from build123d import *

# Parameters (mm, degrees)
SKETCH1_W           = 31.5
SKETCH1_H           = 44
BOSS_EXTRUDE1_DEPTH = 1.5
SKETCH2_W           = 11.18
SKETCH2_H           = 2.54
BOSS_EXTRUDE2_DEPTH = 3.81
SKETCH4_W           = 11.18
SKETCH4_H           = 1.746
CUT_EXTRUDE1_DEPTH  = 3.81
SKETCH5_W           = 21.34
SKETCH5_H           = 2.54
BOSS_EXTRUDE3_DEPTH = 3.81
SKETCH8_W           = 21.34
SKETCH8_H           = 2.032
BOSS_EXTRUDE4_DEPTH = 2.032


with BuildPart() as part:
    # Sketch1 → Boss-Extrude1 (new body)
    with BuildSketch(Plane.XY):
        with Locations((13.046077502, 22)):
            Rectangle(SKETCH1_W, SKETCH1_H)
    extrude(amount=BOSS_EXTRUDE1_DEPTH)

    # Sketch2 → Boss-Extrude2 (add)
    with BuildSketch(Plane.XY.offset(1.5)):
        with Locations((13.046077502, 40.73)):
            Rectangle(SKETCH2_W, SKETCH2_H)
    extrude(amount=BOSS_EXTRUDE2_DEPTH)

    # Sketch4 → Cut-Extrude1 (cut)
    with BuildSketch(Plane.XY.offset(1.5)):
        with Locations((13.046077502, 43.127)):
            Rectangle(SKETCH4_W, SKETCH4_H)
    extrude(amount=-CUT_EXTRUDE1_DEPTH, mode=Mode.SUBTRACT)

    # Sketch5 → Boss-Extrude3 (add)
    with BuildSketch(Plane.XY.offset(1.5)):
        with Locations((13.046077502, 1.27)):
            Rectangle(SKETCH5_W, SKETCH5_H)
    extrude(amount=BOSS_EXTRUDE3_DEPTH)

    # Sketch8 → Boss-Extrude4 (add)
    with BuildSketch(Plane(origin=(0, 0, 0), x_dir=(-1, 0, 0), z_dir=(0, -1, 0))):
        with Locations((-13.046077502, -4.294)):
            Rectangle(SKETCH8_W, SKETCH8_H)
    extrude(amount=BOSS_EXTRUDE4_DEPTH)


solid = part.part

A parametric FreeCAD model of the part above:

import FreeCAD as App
import Part
import Sketcher

V = App.Vector
Q = App.Units.Quantity

doc = App.newDocument("Part")
body = doc.addObject("PartDesign::Body", "Body")

# Sketch on XY plane
sketch1 = body.newObject("Sketcher::SketchObject", "Sketch")
sketch1.AttachmentSupport = (doc.getObject("XY_Plane"), [""])
sketch1.MapMode = "FlatFace"
sketch1.addGeometry([
    Part.LineSegment(V(-3, 44, 0), V(-3, 0, 0)),
    Part.LineSegment(V(-3, 0, 0), V(29, 0, 0)),
    Part.LineSegment(V(29, 0, 0), V(29, 44, 0)),
    Part.LineSegment(V(29, 44, 0), V(-3, 44, 0)),
], False)
sketch1.addConstraint([
    Sketcher.Constraint("Coincident", 0, 2, 1, 1),
    Sketcher.Constraint("Coincident", 1, 2, 2, 1),
    Sketcher.Constraint("Coincident", 2, 2, 3, 1),
    Sketcher.Constraint("Coincident", 3, 2, 0, 1),
    Sketcher.Constraint("Vertical", 0),
    Sketcher.Constraint("Horizontal", 1),
    Sketcher.Constraint("Vertical", 2),
    Sketcher.Constraint("Horizontal", 3),
    Sketcher.Constraint("PointOnObject", 0, 2, -1),
    Sketcher.Constraint("DistanceY", 0, 2, 0, 1, Q("44 mm")),
    Sketcher.Constraint("DistanceX", 1, 1, 1, 2, Q("31.5 mm")),
    Sketcher.Constraint("DistanceX", 0, 2, -1, 1, Q("2.703922 mm")),
])
pad1 = body.newObject("PartDesign::Pad", "Pad")
pad1.Profile = sketch1
pad1.Length = 1.5

# Sketch on XY plane
sketch2 = body.newObject("Sketcher::SketchObject", "Sketch001")
sketch2.AttachmentSupport = (doc.getObject("XY_Plane"), [""])
sketch2.MapMode = "FlatFace"
sketch2.AttachmentOffset = App.Placement(V(0, 0, 1.5), App.Rotation())
sketch2.addGeometry([
    Part.LineSegment(V(7.5, 42, 0), V(7.5, 39.5, 0)),
    Part.LineSegment(V(7.5, 39.5, 0), V(18.6, 39.5, 0)),
    Part.LineSegment(V(18.6, 39.5, 0), V(18.6, 42, 0)),
    Part.LineSegment(V(18.6, 42, 0), V(7.5, 42, 0)),
], False)
sketch2.addConstraint([
    Sketcher.Constraint("Coincident", 0, 2, 1, 1),
    Sketcher.Constraint("Coincident", 1, 2, 2, 1),
    Sketcher.Constraint("Coincident", 2, 2, 3, 1),
    Sketcher.Constraint("Coincident", 3, 2, 0, 1),
    Sketcher.Constraint("Vertical", 0),
    Sketcher.Constraint("Horizontal", 1),
    Sketcher.Constraint("Vertical", 2),
    Sketcher.Constraint("Horizontal", 3),
    Sketcher.Constraint("DistanceY", -1, 1, 2, 2, Q("42 mm")),
    Sketcher.Constraint("DistanceX", 1, 1, 1, 2, Q("11.18 mm")),
    Sketcher.Constraint("DistanceY", 0, 2, 0, 1, Q("2.54 mm")),
    Sketcher.Constraint("DistanceX", -1, 1, 0, 2, Q("7.456078 mm")),
])
pad2 = body.newObject("PartDesign::Pad", "Pad001")
pad2.Profile = sketch2
pad2.Length = 3.81

# Sketch on XY plane
sketch3 = body.newObject("Sketcher::SketchObject", "Sketch002")
sketch3.AttachmentSupport = (doc.getObject("XY_Plane"), [""])
sketch3.MapMode = "FlatFace"
sketch3.AttachmentOffset = App.Placement(V(0, 0, 1.5), App.Rotation())
sketch3.addGeometry([
    Part.LineSegment(V(7.5, 44, 0), V(7.5, 42.3, 0)),
    Part.LineSegment(V(7.5, 42.3, 0), V(18.6, 42.3, 0)),
    Part.LineSegment(V(18.6, 42.3, 0), V(18.6, 44, 0)),
    Part.LineSegment(V(18.6, 44, 0), V(7.5, 44, 0)),
], False)
sketch3.addConstraint([
    Sketcher.Constraint("Coincident", 0, 2, 1, 1),
    Sketcher.Constraint("Coincident", 1, 2, 2, 1),
    Sketcher.Constraint("Coincident", 2, 2, 3, 1),
    Sketcher.Constraint("Coincident", 3, 2, 0, 1),
    Sketcher.Constraint("Vertical", 0),
    Sketcher.Constraint("Horizontal", 1),
    Sketcher.Constraint("Vertical", 2),
    Sketcher.Constraint("Horizontal", 3),
    Sketcher.Constraint("DistanceY", -1, 1, 2, 2, Q("44 mm")),
    Sketcher.Constraint("DistanceX", 1, 1, 1, 2, Q("11.18 mm")),
    Sketcher.Constraint("DistanceY", 0, 2, 0, 1, Q("1.746 mm")),
    Sketcher.Constraint("DistanceX", -1, 1, 0, 2, Q("7.456078 mm")),
])
pocket1 = body.newObject("PartDesign::Pocket", "Pocket")
pocket1.Profile = sketch3
pocket1.Length = 3.81

# Sketch on XY plane
sketch4 = body.newObject("Sketcher::SketchObject", "Sketch003")
sketch4.AttachmentSupport = (doc.getObject("XY_Plane"), [""])
sketch4.MapMode = "FlatFace"
sketch4.AttachmentOffset = App.Placement(V(0, 0, 1.5), App.Rotation())
sketch4.addGeometry([
    Part.LineSegment(V(2.4, 2.5, 0), V(2.4, 0, 0)),
    Part.LineSegment(V(2.4, 0, 0), V(23.7, 0, 0)),
    Part.LineSegment(V(23.7, 0, 0), V(23.7, 2.5, 0)),
    Part.LineSegment(V(23.7, 2.5, 0), V(2.4, 2.5, 0)),
], False)
sketch4.addConstraint([
    Sketcher.Constraint("Coincident", 0, 2, 1, 1),
    Sketcher.Constraint("Coincident", 1, 2, 2, 1),
    Sketcher.Constraint("Coincident", 2, 2, 3, 1),
    Sketcher.Constraint("Coincident", 3, 2, 0, 1),
    Sketcher.Constraint("Vertical", 0),
    Sketcher.Constraint("Horizontal", 1),
    Sketcher.Constraint("Vertical", 2),
    Sketcher.Constraint("Horizontal", 3),
    Sketcher.Constraint("PointOnObject", 0, 2, -1),
    Sketcher.Constraint("DistanceX", 1, 1, 1, 2, Q("21.34 mm")),
    Sketcher.Constraint("DistanceY", 0, 2, 0, 1, Q("2.54 mm")),
    Sketcher.Constraint("DistanceX", -1, 1, 0, 2, Q("2.376078 mm")),
])
pad3 = body.newObject("PartDesign::Pad", "Pad002")
pad3.Profile = sketch4
pad3.Length = 3.81

# Sketch on XZ plane
sketch5 = body.newObject("Sketcher::SketchObject", "Sketch004")
sketch5.AttachmentSupport = (doc.getObject("XZ_Plane"), [""])
sketch5.MapMode = "FlatFace"
sketch5.addGeometry([
    Part.LineSegment(V(23.7, 3.3, 0), V(23.7, 5.3, 0)),
    Part.LineSegment(V(23.7, 5.3, 0), V(2.4, 5.3, 0)),
    Part.LineSegment(V(2.4, 5.3, 0), V(2.4, 3.3, 0)),
    Part.LineSegment(V(2.4, 3.3, 0), V(23.7, 3.3, 0)),
], False)
sketch5.addConstraint([
    Sketcher.Constraint("Coincident", 0, 2, 1, 1),
    Sketcher.Constraint("Coincident", 1, 2, 2, 1),
    Sketcher.Constraint("Coincident", 2, 2, 3, 1),
    Sketcher.Constraint("Coincident", 3, 2, 0, 1),
    Sketcher.Constraint("Vertical", 0),
    Sketcher.Constraint("Horizontal", 1),
    Sketcher.Constraint("Vertical", 2),
    Sketcher.Constraint("Horizontal", 3),
    Sketcher.Constraint("DistanceX", 1, 2, 1, 1, Q("21.34 mm")),
    Sketcher.Constraint("DistanceY", 0, 1, 0, 2, Q("2.032 mm")),
    Sketcher.Constraint("DistanceY", -1, 1, 0, 2, Q("5.31 mm")),
    Sketcher.Constraint("DistanceX", -1, 1, 0, 2, Q("23.716078 mm")),
])
pad4 = body.newObject("PartDesign::Pad", "Pad003")
pad4.Profile = sketch5
pad4.Length = 2.032

doc.recompute()
